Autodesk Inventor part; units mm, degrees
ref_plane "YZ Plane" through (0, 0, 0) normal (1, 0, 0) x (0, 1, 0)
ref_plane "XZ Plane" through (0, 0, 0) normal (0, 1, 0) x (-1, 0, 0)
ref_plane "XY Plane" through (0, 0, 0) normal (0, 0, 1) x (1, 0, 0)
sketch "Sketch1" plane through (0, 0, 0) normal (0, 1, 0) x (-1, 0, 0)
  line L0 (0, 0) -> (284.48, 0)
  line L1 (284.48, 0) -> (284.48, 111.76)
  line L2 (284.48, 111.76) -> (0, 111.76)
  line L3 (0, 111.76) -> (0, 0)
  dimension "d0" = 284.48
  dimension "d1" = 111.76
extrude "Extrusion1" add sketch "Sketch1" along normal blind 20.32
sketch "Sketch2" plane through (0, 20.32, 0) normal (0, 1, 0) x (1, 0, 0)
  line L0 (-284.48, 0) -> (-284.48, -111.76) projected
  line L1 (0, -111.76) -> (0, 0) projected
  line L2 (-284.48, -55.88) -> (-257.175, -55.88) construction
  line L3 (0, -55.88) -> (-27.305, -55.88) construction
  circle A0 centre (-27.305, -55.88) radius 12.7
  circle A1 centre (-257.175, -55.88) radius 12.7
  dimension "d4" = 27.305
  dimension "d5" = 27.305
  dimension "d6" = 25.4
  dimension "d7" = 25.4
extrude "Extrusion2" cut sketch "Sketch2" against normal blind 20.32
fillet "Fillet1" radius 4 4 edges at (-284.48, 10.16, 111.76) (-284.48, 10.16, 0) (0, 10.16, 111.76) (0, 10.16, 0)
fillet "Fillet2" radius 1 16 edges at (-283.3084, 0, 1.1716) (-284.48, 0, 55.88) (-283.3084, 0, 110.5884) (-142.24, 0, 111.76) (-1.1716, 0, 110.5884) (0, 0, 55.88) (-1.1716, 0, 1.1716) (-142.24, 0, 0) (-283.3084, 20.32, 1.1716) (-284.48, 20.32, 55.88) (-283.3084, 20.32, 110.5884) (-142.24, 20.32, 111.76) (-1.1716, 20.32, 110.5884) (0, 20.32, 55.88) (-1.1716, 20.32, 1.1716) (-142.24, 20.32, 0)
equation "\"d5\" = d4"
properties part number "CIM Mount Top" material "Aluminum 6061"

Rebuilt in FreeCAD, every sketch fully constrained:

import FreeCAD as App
import Part
import Sketcher
from FreeCAD import Vector
Q = App.Units.Quantity


def edges_at(feature, points):
    """Names of the edges that pass closest to the given points."""
    edges = feature.Shape.Edges
    near = lambda p: min(range(len(edges)), key=lambda i: edges[i].distToShape(Part.Vertex(*p))[0])
    return sorted({f"Edge{near(p) + 1}" for p in points})


def add_polygon(sketch, points):
    """Adds a closed chain of lines whose ends are joined by coincident constraints."""
    first, n = sketch.GeometryCount, len(points)
    for a, b in zip(points, points[1:] + points[:1]):
        sketch.addGeometry(Part.LineSegment(App.Vector(*a, 0), App.Vector(*b, 0)), False)
    for i in range(n):
        sketch.addConstraint(Sketcher.Constraint("Coincident", first + i, 2, first + (i + 1) % n, 1))

doc = App.newDocument("Part")
body = doc.addObject("PartDesign::Body", "Body")

sketch1 = body.newObject("Sketcher::SketchObject", "Sketch")
sketch1.AttachmentSupport = (doc.getObject("XZ_Plane"), [""])
sketch1.MapMode = "FlatFace"
add_polygon(sketch1, [(0, 112), (0, 0), (-284, 0), (-284, 112)])
sketch1.addConstraint([
    Sketcher.Constraint("Vertical", 0),
    Sketcher.Constraint("Horizontal", 1),
    Sketcher.Constraint("Vertical", 2),
    Sketcher.Constraint("Horizontal", 3),
    Sketcher.Constraint("Coincident", 0, 2, -1, 1),
    Sketcher.Constraint("DistanceX", 1, 2, 1, 1, Q("11.2 in")),
    Sketcher.Constraint("DistanceY", 0, 2, 0, 1, Q("4.4 in")),
])
pad1 = body.newObject("PartDesign::Pad", "Pad")
pad1.Profile = sketch1
pad1.Length = Q("0.8 in")
pad1.Reversed = True

sketch2 = body.newObject("Sketcher::SketchObject", "Sketch001")
sketch2.AttachmentSupport = (doc.getObject("XZ_Plane"), [""])
sketch2.MapMode = "FlatFace"
sketch2.AttachmentOffset = App.Placement(Vector(0, 0, -0.8 * 25.4), App.Rotation())
sketch2.addGeometry([
    Part.Circle(Vector(-27, 56, 0), Vector(0, 0, 1), 13),
    Part.Circle(Vector(-257, 56, 0), Vector(0, 0, 1), 13),
], False)
sketch2.addConstraint([
    Sketcher.Constraint("Equal", 0, 1),
    Sketcher.Constraint("Horizontal", 0, 3, 1, 3),
    Sketcher.Constraint("Diameter", 0, Q("1 in")),
    Sketcher.Constraint("DistanceX", 0, 3, -1, 1, Q("1.075 in")),
    Sketcher.Constraint("DistanceY", -1, 1, 0, 3, Q("2.2 in")),
    Sketcher.Constraint("DistanceX", 1, 3, 0, 3, Q("9.05 in")),
])
pocket1 = body.newObject("PartDesign::Pocket", "Pocket")
pocket1.Profile = sketch2
pocket1.Length = Q("0.8 in")
pocket1.Reversed = True
doc.recompute()

fillet = body.newObject("PartDesign::Fillet", "Fillet")
fillet.Base = (pocket1, edges_at(pocket1, [
    (-284.48, 10.16, 111.76),
    (-284.48, 10.16, 0),
    (0, 10.16, 111.76),
    (0, 10.16, 0),
]))
fillet.Radius = 4
doc.recompute()

fillet2 = body.newObject("PartDesign::Fillet", "Fillet001")
fillet2.Base = (fillet, edges_at(fillet, [
    (-283.308, 0, 1.172),
    (-284.48, 0, 55.88),
    (-283.308, 0, 110.588),
    (-142.24, 0, 111.76),
    (-1.172, 0, 110.588),
    (0, 0, 55.88),
    (-1.172, 0, 1.172),
    (-142.24, 0, 0),
    (-283.308, 20.32, 1.172),
    (-284.48, 20.32, 55.88),
    (-283.308, 20.32, 110.588),
    (-142.24, 20.32, 111.76),
    (-1.172, 20.32, 110.588),
    (0, 20.32, 55.88),
    (-1.172, 20.32, 1.172),
    (-142.24, 20.32, 0),
]))
fillet2.Radius = 1

doc.recompute()
